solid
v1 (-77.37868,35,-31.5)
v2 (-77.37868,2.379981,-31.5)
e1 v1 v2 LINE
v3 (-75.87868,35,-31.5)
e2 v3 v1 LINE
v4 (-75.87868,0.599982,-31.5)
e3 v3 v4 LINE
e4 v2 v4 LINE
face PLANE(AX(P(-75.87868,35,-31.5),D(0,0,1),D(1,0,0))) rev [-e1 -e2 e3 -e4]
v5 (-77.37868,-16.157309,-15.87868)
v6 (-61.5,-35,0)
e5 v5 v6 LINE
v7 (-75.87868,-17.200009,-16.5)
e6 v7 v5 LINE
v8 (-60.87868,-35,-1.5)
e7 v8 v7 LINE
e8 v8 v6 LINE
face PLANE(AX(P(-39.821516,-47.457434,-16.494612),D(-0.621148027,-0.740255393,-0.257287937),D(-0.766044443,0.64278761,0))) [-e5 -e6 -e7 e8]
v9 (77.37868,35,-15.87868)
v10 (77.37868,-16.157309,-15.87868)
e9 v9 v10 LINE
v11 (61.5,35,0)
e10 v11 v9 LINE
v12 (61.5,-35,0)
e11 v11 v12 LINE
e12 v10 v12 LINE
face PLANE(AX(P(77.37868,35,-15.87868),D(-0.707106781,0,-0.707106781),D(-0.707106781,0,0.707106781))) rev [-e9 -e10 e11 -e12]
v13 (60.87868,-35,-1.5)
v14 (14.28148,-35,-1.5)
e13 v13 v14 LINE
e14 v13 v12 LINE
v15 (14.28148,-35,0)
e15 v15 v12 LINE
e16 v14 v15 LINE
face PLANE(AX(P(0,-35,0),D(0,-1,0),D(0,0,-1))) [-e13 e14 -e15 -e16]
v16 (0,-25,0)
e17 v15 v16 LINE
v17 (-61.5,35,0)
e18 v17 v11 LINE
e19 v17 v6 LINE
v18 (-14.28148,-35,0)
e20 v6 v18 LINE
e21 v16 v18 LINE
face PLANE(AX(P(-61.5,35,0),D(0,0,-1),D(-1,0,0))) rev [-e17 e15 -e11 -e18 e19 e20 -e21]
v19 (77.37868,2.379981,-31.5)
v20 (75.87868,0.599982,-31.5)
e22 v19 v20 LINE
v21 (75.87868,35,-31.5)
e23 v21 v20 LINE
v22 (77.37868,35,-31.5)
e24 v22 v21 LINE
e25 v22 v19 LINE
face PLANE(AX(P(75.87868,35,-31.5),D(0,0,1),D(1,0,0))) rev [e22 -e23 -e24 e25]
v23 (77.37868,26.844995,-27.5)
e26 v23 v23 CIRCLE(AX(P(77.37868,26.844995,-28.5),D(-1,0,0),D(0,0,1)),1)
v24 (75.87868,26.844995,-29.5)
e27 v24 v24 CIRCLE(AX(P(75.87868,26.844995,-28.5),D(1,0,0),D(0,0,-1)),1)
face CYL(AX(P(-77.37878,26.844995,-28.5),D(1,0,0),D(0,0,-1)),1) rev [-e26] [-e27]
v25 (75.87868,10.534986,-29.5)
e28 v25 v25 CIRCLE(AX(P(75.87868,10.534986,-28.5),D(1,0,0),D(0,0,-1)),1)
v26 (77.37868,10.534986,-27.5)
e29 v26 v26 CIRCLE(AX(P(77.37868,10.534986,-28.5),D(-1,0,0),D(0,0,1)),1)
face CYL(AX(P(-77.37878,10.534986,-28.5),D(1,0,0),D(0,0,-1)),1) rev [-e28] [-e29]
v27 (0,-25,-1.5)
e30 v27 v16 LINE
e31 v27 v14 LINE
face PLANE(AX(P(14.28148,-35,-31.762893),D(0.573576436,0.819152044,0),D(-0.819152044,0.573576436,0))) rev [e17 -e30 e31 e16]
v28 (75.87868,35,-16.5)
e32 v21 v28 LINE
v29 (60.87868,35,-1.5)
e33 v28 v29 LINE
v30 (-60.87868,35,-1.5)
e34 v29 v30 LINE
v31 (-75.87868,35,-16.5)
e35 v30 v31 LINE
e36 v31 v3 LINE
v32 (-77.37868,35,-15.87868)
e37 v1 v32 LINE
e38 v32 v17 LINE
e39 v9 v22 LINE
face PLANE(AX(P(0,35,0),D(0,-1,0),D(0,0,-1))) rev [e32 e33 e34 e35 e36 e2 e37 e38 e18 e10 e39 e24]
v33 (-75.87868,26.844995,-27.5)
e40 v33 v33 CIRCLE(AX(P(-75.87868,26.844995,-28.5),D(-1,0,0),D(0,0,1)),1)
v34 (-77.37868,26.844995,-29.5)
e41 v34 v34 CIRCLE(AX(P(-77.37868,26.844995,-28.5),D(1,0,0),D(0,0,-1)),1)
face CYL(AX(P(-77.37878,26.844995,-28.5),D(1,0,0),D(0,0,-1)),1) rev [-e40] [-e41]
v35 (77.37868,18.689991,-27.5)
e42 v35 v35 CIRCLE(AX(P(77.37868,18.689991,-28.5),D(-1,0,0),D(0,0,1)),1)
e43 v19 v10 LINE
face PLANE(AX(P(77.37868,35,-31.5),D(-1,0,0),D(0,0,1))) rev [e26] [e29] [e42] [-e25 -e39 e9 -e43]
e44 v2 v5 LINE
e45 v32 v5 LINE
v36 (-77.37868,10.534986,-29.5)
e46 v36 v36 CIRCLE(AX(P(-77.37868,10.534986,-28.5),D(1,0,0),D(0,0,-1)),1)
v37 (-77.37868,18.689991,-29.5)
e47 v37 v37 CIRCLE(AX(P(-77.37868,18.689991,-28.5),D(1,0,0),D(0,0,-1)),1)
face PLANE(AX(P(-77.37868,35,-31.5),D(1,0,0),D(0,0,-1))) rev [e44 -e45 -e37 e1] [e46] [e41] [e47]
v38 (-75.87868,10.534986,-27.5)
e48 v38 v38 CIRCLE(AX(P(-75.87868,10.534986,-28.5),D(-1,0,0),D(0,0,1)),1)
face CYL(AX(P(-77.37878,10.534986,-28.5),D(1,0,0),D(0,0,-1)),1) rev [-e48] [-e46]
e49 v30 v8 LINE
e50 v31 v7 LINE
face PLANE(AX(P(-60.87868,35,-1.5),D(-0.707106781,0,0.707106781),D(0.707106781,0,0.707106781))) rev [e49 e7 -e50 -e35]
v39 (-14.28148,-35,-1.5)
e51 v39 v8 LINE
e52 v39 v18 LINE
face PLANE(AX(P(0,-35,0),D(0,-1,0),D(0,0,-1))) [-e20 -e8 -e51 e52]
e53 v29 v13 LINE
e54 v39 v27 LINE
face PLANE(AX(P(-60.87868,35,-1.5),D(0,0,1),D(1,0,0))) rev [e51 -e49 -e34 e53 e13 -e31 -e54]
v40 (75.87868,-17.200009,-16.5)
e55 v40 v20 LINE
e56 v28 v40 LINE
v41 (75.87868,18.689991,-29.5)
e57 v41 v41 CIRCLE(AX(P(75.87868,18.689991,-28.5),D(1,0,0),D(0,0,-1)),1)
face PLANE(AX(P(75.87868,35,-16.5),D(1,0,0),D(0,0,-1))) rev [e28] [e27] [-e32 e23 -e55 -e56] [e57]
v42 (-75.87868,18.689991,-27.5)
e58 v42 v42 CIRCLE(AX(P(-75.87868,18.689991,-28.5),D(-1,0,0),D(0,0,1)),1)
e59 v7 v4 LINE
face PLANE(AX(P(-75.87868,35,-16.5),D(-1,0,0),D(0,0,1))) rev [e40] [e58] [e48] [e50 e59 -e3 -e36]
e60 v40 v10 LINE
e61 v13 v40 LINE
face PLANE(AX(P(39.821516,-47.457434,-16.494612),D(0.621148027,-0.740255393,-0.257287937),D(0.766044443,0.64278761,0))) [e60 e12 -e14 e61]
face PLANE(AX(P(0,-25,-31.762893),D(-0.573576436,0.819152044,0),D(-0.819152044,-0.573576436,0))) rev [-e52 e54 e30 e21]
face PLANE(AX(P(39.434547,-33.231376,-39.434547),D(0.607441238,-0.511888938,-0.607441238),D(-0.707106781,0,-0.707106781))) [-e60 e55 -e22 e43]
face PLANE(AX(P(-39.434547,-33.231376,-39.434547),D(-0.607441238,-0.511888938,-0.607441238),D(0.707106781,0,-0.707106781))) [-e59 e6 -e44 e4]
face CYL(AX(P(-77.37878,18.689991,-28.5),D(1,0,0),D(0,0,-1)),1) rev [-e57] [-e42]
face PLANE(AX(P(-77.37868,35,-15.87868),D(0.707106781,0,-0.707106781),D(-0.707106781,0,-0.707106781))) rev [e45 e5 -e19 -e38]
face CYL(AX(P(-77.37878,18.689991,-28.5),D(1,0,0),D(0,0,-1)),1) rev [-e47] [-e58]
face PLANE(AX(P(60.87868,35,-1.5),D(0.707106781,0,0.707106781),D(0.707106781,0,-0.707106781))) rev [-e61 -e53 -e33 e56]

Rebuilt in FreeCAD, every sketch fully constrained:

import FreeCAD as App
import Part
import Sketcher
from FreeCAD import Vector
Q = App.Units.Quantity


def add_polygon(sketch, points):
    """Adds a closed chain of lines whose ends are joined by coincident constraints."""
    first, n = sketch.GeometryCount, len(points)
    for a, b in zip(points, points[1:] + points[:1]):
        sketch.addGeometry(Part.LineSegment(App.Vector(*a, 0), App.Vector(*b, 0)), False)
    for i in range(n):
        sketch.addConstraint(Sketcher.Constraint("Coincident", first + i, 2, first + (i + 1) % n, 1))

doc = App.newDocument("Part")
body = doc.addObject("PartDesign::Body", "Body")

sketch1 = body.newObject("Sketcher::SketchObject", "Sketch")
sketch1.AttachmentSupport = (doc.getObject("XZ_Plane"), [""])
sketch1.MapMode = "FlatFace"
add_polygon(sketch1, [(-61.5, 0), (61.5, 0), (77.37868, -15.87868), (77.37868, -31.5), (75.87868, -31.5), (75.87868, -16.5), (60.87868, -1.5), (-60.87868, -1.5), (-75.87868, -16.5), (-75.87868, -31.5), (-77.37868, -31.5), (-77.37868, -15.87868)])
sketch1.addConstraint([
    Sketcher.Constraint("Horizontal", 0),
    Sketcher.Constraint("Vertical", 2),
    Sketcher.Constraint("Horizontal", 3),
    Sketcher.Constraint("Vertical", 4),
    Sketcher.Constraint("Horizontal", 6),
    Sketcher.Constraint("Vertical", 8),
    Sketcher.Constraint("Horizontal", 9),
    Sketcher.Constraint("Vertical", 10),
    Sketcher.Constraint("Symmetric", 0, 2, 11, 2, -1, 1),
    Sketcher.Constraint("Symmetric", 4, 2, 7, 2, -2),
    Sketcher.Constraint("Symmetric", 2, 2, 9, 2, -2),
    Sketcher.Constraint("Parallel", 1, 5),
    Sketcher.Constraint("Perpendicular", 5, 7),
    Sketcher.Constraint("Parallel", 7, 11),
    Sketcher.Constraint("Horizontal", 1, 2, 10, 2),
    Sketcher.Constraint("DistanceX", 0, 1, 0, 2, 123.0),
    Sketcher.Constraint("DistanceY", 4, 1, 4, 2, 15.0),
    Sketcher.Constraint("DistanceX", 3, 2, 3, 1, 1.5),
    Sketcher.Constraint("DistanceX", 5, 2, 4, 2, 15.0),
    Sketcher.Constraint("DistanceY", 2, 2, -1, 1, 31.5),
    Sketcher.Constraint("DistanceX", 6, 2, 6, 1, 121.757359),
])
pad1 = body.newObject("PartDesign::Pad", "Pad")
pad1.Profile = sketch1
pad1.Length = 70
pad1.Midplane = True

sketch2 = body.newObject("Sketcher::SketchObject", "Sketch001")
sketch2.AttachmentSupport = (doc.getObject("XY_Plane"), [""])
sketch2.MapMode = "FlatFace"
add_polygon(sketch2, [(0, -25), (-14.28148, -35), (14.28148, -35)])
sketch2.addConstraint([
    Sketcher.Constraint("Horizontal", 1),
    Sketcher.Constraint("PointOnObject", 2, 2, -2),
    Sketcher.Constraint("Equal", 0, 2),
    Sketcher.Constraint("Angle", 0, Q("-145 deg")),
    Sketcher.Constraint("DistanceY", 0, 2, -1, 1, 35.0),
    Sketcher.Constraint("DistanceY", 2, 2, -1, 1, 25.0),
])
pocket1 = body.newObject("PartDesign::Pocket", "Pocket")
pocket1.Profile = sketch2
pocket1.Length = 1.5

sketch3 = body.newObject("Sketcher::SketchObject", "Sketch002")
sketch3.Placement = App.Placement(Vector(29.68934, 0, 29.68934), App.Rotation(Vector(-0.707106781, 0, 0.707106781), Vector(0, 0.999999999, 0), Vector(-0.707106781, 0, -0.707106781), "ZXY"))
add_polygon(sketch3, [(-44.108387, -35), (-65.321591, -17.200009), (-65.321591, -35)])
sketch3.addConstraint([
    Sketcher.Constraint("Vertical", 1),
    Sketcher.Constraint("Horizontal", 2),
    Sketcher.Constraint("Angle", 0, Q("140 deg")),
    Sketcher.Constraint("DistanceY", 1, 2, -1, 1, 35.0),
    Sketcher.Constraint("DistanceY", 1, 2, 1, 1, 17.799991),
    Sketcher.Constraint("DistanceX", 0, 2, -1, 1, 65.321591),
])

sketch4 = body.newObject("Sketcher::SketchObject", "Sketch003")
sketch4.Placement = App.Placement(Vector(30.75, 0, 30.75), App.Rotation(Vector(0.707106781, 0, -0.707106781), Vector(0, 0.999999999, 0), Vector(0.707106781, 0, 0.707106781), "ZXY"))
add_polygon(sketch4, [(65.942911, -16.157309), (43.487067, -35), (65.942911, -35)])
sketch4.addConstraint([
    Sketcher.Constraint("Horizontal", 1),
    Sketcher.Constraint("Vertical", 2),
    Sketcher.Constraint("Angle", 0, Q("-140 deg")),
    Sketcher.Constraint("DistanceY", 0, 2, -1, 1, 35.0),
    Sketcher.Constraint("DistanceY", 2, 1, 2, 2, 18.842691),
    Sketcher.Constraint("DistanceX", -1, 1, 1, 2, 65.942911),
])

subtractiveloft = body.newObject("PartDesign::SubtractiveLoft", "SubtractiveLoft")
subtractiveloft.Profile = sketch3
subtractiveloft.Sections = [sketch4]

sketch5 = body.newObject("Sketcher::SketchObject", "Sketch004")
sketch5.AttachmentSupport = (doc.getObject("YZ_Plane"), [""])
sketch5.MapMode = "FlatFace"
sketch5.AttachmentOffset = App.Placement(Vector(0, 0, 77.37868), App.Rotation())
add_polygon(sketch5, [(2.379981, -31.5), (-16.157309, -15.87868), (-35, -15.87868), (-35, -31.5)])
sketch5.addConstraint([
    Sketcher.Constraint("Horizontal", 1),
    Sketcher.Constraint("Vertical", 2),
    Sketcher.Constraint("Horizontal", 3),
    Sketcher.Constraint("DistanceX", 1, 2, -1, 1, 35.0),
    Sketcher.Constraint("DistanceY", 2, 2, -1, 1, 31.5),
    Sketcher.Constraint("DistanceX", 1, 2, 1, 1, 18.842691),
    Sketcher.Constraint("DistanceX", 3, 1, 3, 2, 37.379981),
    Sketcher.Constraint("DistanceY", 2, 2, 2, 1, 15.62132),
])

sketch6 = body.newObject("Sketcher::SketchObject", "Sketch005")
sketch6.AttachmentSupport = (doc.getObject("YZ_Plane"), [""])
sketch6.MapMode = "FlatFace"
sketch6.AttachmentOffset = App.Placement(Vector(0, 0, 75.87868), App.Rotation())
add_polygon(sketch6, [(0.599982, -31.5), (-35, -31.5), (-35, -16.5), (-17.200009, -16.5)])
sketch6.addConstraint([
    Sketcher.Constraint("Horizontal", 0),
    Sketcher.Constraint("Vertical", 1),
    Sketcher.Constraint("Horizontal", 2),
    Sketcher.Constraint("DistanceY", 1, 1, 1, 2, 15.0),
    Sketcher.Constraint("DistanceX", 0, 2, -1, 1, 35.0),
    Sketcher.Constraint("DistanceY", 0, 2, -1, 1, 31.5),
    Sketcher.Constraint("DistanceX", 2, 1, 2, 2, 17.799991),
    Sketcher.Constraint("Distance", 3, 23.27745),
])

subtractiveloft2 = body.newObject("PartDesign::SubtractiveLoft", "SubtractiveLoft001")
subtractiveloft2.Profile = sketch5
subtractiveloft2.Sections = [sketch6]
doc.recompute()

mirrored = body.newObject("PartDesign::Mirrored", "Mirrored")
mirrored.Originals = [subtractiveloft, subtractiveloft2]
mirrored.MirrorPlane = (doc.getObject("YZ_Plane"), [""])
body.Tip = mirrored

sketch7 = body.newObject("Sketcher::SketchObject", "Sketch006")
sketch7.AttachmentSupport = (doc.getObject("YZ_Plane"), [""])
sketch7.MapMode = "FlatFace"
sketch7.addGeometry([
    Part.Circle(Vector(26.844995, -28.5, 0), Vector(0, 0, 1), 1),
    Part.Circle(Vector(18.689991, -28.5, 0), Vector(0, 0, 1), 1),
    Part.Circle(Vector(10.534986, -28.5, 0), Vector(0, 0, 1), 1),
], False)
sketch7.addConstraint([
    Sketcher.Constraint("Equal", 0, 1),
    Sketcher.Constraint("Equal", 1, 2),
    Sketcher.Constraint("Horizontal", 0, 3, 1, 3),
    Sketcher.Constraint("Horizontal", 1, 3, 2, 3),
    Sketcher.Constraint("Diameter", 0, 2.0),
    Sketcher.Constraint("DistanceY", 0, 3, -1, 1, 28.5),
    Sketcher.Constraint("DistanceX", -1, 1, 1, 3, 18.689991),
    Sketcher.Constraint("DistanceX", 2, 3, 0, 3, 16.310009),
    Sketcher.Constraint("DistanceX", -1, 1, 0, 3, 26.844995),
])
pocket2 = body.newObject("PartDesign::Pocket", "Pocket001")
pocket2.Profile = sketch7
pocket2.Type = "ThroughAll"
pocket2.Midplane = True

doc.recompute()
